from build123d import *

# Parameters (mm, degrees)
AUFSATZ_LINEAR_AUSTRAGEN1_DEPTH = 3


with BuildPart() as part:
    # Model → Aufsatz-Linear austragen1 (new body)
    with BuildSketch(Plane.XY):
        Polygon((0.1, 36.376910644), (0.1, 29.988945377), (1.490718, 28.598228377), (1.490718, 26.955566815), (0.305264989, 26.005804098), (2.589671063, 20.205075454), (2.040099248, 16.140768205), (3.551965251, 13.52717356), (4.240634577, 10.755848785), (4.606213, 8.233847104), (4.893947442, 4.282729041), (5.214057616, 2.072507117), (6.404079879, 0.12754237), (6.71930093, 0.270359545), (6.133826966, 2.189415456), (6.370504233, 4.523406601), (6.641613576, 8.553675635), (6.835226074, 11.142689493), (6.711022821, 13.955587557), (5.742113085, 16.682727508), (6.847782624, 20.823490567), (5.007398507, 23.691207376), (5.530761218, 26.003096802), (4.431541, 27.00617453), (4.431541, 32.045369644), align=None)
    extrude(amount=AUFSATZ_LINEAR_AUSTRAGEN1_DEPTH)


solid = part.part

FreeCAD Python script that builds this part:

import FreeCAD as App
import Part
import Sketcher
Q = App.Units.Quantity

doc = App.newDocument("Part")
params = doc.addObject("Spreadsheet::Sheet", "Params")
for row, (alias, value) in enumerate([
    ("pad1_length", "3 mm"),
], start=1):
    params.set(f"A{row}", alias)
    params.set(f"B{row}", "=" + value)
    params.setAlias(f"B{row}", alias)

body = doc.addObject("PartDesign::Body", "Body")

# Sketch on XY plane
sketch1 = body.newObject("Sketcher::SketchObject", "Sketch")
sketch1.AttachmentSupport = (doc.getObject("XY_Plane"), [""])
sketch1.MapMode = "FlatFace"
sketch1.addGeometry([
    Part.LineSegment(App.Vector(0.1, 36.38, 0), App.Vector(0.1, 29.99, 0)),  # 0
    Part.LineSegment(App.Vector(0.1, 29.99, 0), App.Vector(1.49, 28.6, 0)),  # 1
    Part.LineSegment(App.Vector(1.49, 28.6, 0), App.Vector(1.49, 26.96, 0)),  # 2
    Part.LineSegment(App.Vector(1.49, 26.96, 0), App.Vector(0.31, 26.01, 0)),  # 3
    Part.LineSegment(App.Vector(0.31, 26.01, 0), App.Vector(2.59, 20.21, 0)),  # 4
    Part.LineSegment(App.Vector(2.59, 20.21, 0), App.Vector(2.04, 16.14, 0)),  # 5
    Part.LineSegment(App.Vector(2.04, 16.14, 0), App.Vector(3.55, 13.53, 0)),  # 6
    Part.LineSegment(App.Vector(3.55, 13.53, 0), App.Vector(4.24, 10.76, 0)),  # 7
    Part.LineSegment(App.Vector(4.24, 10.76, 0), App.Vector(4.61, 8.23, 0)),  # 8
    Part.LineSegment(App.Vector(4.61, 8.23, 0), App.Vector(4.89, 4.28, 0)),  # 9
    Part.LineSegment(App.Vector(4.89, 4.28, 0), App.Vector(5.21, 2.07, 0)),  # 10
    Part.LineSegment(App.Vector(5.21, 2.07, 0), App.Vector(6.4, 0.13, 0)),  # 11
    Part.LineSegment(App.Vector(6.4, 0.13, 0), App.Vector(6.72, 0.27, 0)),  # 12
    Part.LineSegment(App.Vector(6.72, 0.27, 0), App.Vector(6.13, 2.19, 0)),  # 13
    Part.LineSegment(App.Vector(6.13, 2.19, 0), App.Vector(6.37, 4.52, 0)),  # 14
    Part.LineSegment(App.Vector(6.37, 4.52, 0), App.Vector(6.64, 8.55, 0)),  # 15
    Part.LineSegment(App.Vector(6.64, 8.55, 0), App.Vector(6.84, 11.14, 0)),  # 16
    Part.LineSegment(App.Vector(6.84, 11.14, 0), App.Vector(6.71, 13.96, 0)),  # 17
    Part.LineSegment(App.Vector(6.71, 13.96, 0), App.Vector(5.74, 16.68, 0)),  # 18
    Part.LineSegment(App.Vector(5.74, 16.68, 0), App.Vector(6.85, 20.82, 0)),  # 19
    Part.LineSegment(App.Vector(6.85, 20.82, 0), App.Vector(5.01, 23.69, 0)),  # 20
    Part.LineSegment(App.Vector(5.01, 23.69, 0), App.Vector(5.53, 26, 0)),  # 21
    Part.LineSegment(App.Vector(5.53, 26, 0), App.Vector(4.43, 27.01, 0)),  # 22
    Part.LineSegment(App.Vector(4.43, 27.01, 0), App.Vector(4.43, 32.05, 0)),  # 23
    Part.LineSegment(App.Vector(4.43, 32.05, 0), App.Vector(0.1, 36.38, 0)),  # 24
], False)
sketch1.addConstraint([
    Sketcher.Constraint("Coincident", 0, 2, 1, 1),
    Sketcher.Constraint("Coincident", 1, 2, 2, 1),
    Sketcher.Constraint("Coincident", 2, 2, 3, 1),
    Sketcher.Constraint("Coincident", 3, 2, 4, 1),
    Sketcher.Constraint("Coincident", 4, 2, 5, 1),
    Sketcher.Constraint("Coincident", 5, 2, 6, 1),
    Sketcher.Constraint("Coincident", 6, 2, 7, 1),
    Sketcher.Constraint("Coincident", 7, 2, 8, 1),
    Sketcher.Constraint("Coincident", 8, 2, 9, 1),
    Sketcher.Constraint("Coincident", 9, 2, 10, 1),
    Sketcher.Constraint("Coincident", 10, 2, 11, 1),
    Sketcher.Constraint("Coincident", 11, 2, 12, 1),
    Sketcher.Constraint("Coincident", 12, 2, 13, 1),
    Sketcher.Constraint("Coincident", 13, 2, 14, 1),
    Sketcher.Constraint("Coincident", 14, 2, 15, 1),
    Sketcher.Constraint("Coincident", 15, 2, 16, 1),
    Sketcher.Constraint("Coincident", 16, 2, 17, 1),
    Sketcher.Constraint("Coincident", 17, 2, 18, 1),
    Sketcher.Constraint("Coincident", 18, 2, 19, 1),
    Sketcher.Constraint("Coincident", 19, 2, 20, 1),
    Sketcher.Constraint("Coincident", 20, 2, 21, 1),
    Sketcher.Constraint("Coincident", 21, 2, 22, 1),
    Sketcher.Constraint("Coincident", 22, 2, 23, 1),
    Sketcher.Constraint("Coincident", 23, 2, 24, 1),
    Sketcher.Constraint("Coincident", 24, 2, 0, 1),
    Sketcher.Constraint("Vertical", 0),
    Sketcher.Constraint("Vertical", 2),
    Sketcher.Constraint("Vertical", 23),
    Sketcher.Constraint("Parallel", 1, 24),
    Sketcher.Constraint("Angle", 24, Q("135 deg")),
    Sketcher.Constraint("DistanceX", -1, 1, 0, 2, 0.1),
    Sketcher.Constraint("DistanceY", 8, 2, 7, 2, 2.522002),
    Sketcher.Constraint("DistanceY", 2, 2, 2, 1, 1.642662),
    Sketcher.Constraint("DistanceX", -1, 1, 5, 2, 2.040099),
    Sketcher.Constraint("DistanceX", -1, 1, 12, 2, 6.719301),
    Sketcher.Constraint("DistanceX", -1, 1, 20, 2, 5.007399),
    Sketcher.Constraint("DistanceY", 5, 2, 2, 2, 10.814799),
    Sketcher.Constraint("DistanceY", 6, 2, 4, 2, 6.677902),
    Sketcher.Constraint("DistanceX", 3, 2, 6, 2, 3.2467),
    Sketcher.Constraint("DistanceY", 10, 2, 14, 2, 2.450899),
    Sketcher.Constraint("DistanceX", 8, 2, 15, 2, 2.035401),
    Sketcher.Constraint("DistanceY", 16, 2, 17, 2, 2.812898),
    Sketcher.Constraint("Distance", 1, 1.966772),
    Sketcher.Constraint("Distance", 7, 2.85561),
    Sketcher.Constraint("Distance", 8, 2.54836),
    Sketcher.Constraint("Distance", 9, 3.961581),
    Sketcher.Constraint("Distance", 11, 2.280141),
    Sketcher.Constraint("Distance", 13, 2.006379),
    Sketcher.Constraint("Distance", 14, 2.345961),
    Sketcher.Constraint("Distance", 17, 2.815639),
    Sketcher.Constraint("Distance", 19, 4.28584),
    Sketcher.Constraint("Distance", 21, 2.370388),
    Sketcher.Constraint("DistanceY", 0, 2, 0, 1, 6.387965),
    Sketcher.Constraint("DistanceY", 23, 1, 23, 2, 5.039195),
    Sketcher.Constraint("DistanceY", -1, 1, 1, 2, 28.598228),
    Sketcher.Constraint("DistanceX", -1, 1, 4, 2, 2.589671),
    Sketcher.Constraint("DistanceY", -1, 1, 7, 2, 10.755849),
    Sketcher.Constraint("DistanceY", -1, 1, 9, 2, 4.282729),
    Sketcher.Constraint("DistanceX", -1, 1, 11, 2, 6.40408),
    Sketcher.Constraint("DistanceY", -1, 1, 12, 2, 0.27036),
    Sketcher.Constraint("DistanceY", -1, 1, 16, 2, 11.142689),
    Sketcher.Constraint("DistanceY", -1, 1, 19, 2, 20.823491),
    Sketcher.Constraint("DistanceX", -1, 1, 21, 2, 5.530761),
    Sketcher.Constraint("DistanceX", -1, 1, 22, 2, 4.431541),
    Sketcher.Constraint("DistanceY", 3, 2, 0, 2, 3.983141),
    Sketcher.Constraint("DistanceY", 4, 2, 3, 2, 5.800729),
    Sketcher.Constraint("DistanceX", 4, 2, 8, 2, 2.016542),
    Sketcher.Constraint("DistanceX", 9, 2, 10, 2, 0.32011),
    Sketcher.Constraint("DistanceY", 10, 2, 9, 2, 2.210222),
    Sketcher.Constraint("DistanceX", 10, 2, 13, 2, 0.919769),
    Sketcher.Constraint("DistanceY", 8, 2, 15, 2, 0.319829),
    Sketcher.Constraint("DistanceX", 7, 2, 16, 2, 2.594591),
    Sketcher.Constraint("DistanceX", 18, 2, 17, 2, 0.96891),
    Sketcher.Constraint("DistanceY", 17, 2, 18, 2, 2.72714),
    Sketcher.Constraint("DistanceY", 4, 2, 20, 2, 3.486132),
])
pad1 = body.newObject("PartDesign::Pad", "Pad")
pad1.Profile = sketch1
pad1.setExpression("Length", "Params.pad1_length")

doc.recompute()
